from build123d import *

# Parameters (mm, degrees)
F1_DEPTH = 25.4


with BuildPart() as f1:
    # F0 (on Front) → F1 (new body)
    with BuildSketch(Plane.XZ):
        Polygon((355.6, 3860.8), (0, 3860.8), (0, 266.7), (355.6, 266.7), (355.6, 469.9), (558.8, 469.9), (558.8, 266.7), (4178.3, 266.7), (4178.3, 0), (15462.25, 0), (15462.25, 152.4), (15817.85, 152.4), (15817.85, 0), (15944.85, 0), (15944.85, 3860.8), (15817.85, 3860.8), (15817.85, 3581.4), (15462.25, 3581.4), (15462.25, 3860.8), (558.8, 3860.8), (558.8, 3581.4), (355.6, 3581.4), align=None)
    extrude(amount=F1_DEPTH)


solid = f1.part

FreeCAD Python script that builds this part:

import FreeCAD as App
import Part
import Sketcher
from FreeCAD import Vector
Q = App.Units.Quantity


def add_polygon(sketch, points):
    """Adds a closed chain of lines whose ends are joined by coincident constraints."""
    first, n = sketch.GeometryCount, len(points)
    for a, b in zip(points, points[1:] + points[:1]):
        sketch.addGeometry(Part.LineSegment(App.Vector(*a, 0), App.Vector(*b, 0)), False)
    for i in range(n):
        sketch.addConstraint(Sketcher.Constraint("Coincident", first + i, 2, first + (i + 1) % n, 1))

doc = App.newDocument("Part")
body = doc.addObject("PartDesign::Body", "Body")

sketch1 = body.newObject("Sketcher::SketchObject", "Sketch")
sketch1.AttachmentSupport = (doc.getObject("XZ_Plane"), [""])
sketch1.MapMode = "FlatFace"
add_polygon(sketch1, [(356, 3861), (0, 3861), (0, 267), (356, 267), (356, 470), (559, 470), (559, 267), (4178, 267), (4178, 0), (15462, 0), (15462, 152), (15818, 152), (15818, 0), (15945, 0), (15945, 3861), (15818, 3861), (15818, 3581), (15462, 3581), (15462, 3861), (559, 3861), (559, 3581), (356, 3581)])
sketch1.addConstraint([
    Sketcher.Constraint("Horizontal", 0),
    Sketcher.Constraint("Vertical", 1),
    Sketcher.Constraint("Horizontal", 2),
    Sketcher.Constraint("Vertical", 3),
    Sketcher.Constraint("Horizontal", 4),
    Sketcher.Constraint("Vertical", 5),
    Sketcher.Constraint("Horizontal", 6),
    Sketcher.Constraint("Vertical", 7),
    Sketcher.Constraint("Horizontal", 8),
    Sketcher.Constraint("Vertical", 9),
    Sketcher.Constraint("Horizontal", 10),
    Sketcher.Constraint("Vertical", 11),
    Sketcher.Constraint("Horizontal", 12),
    Sketcher.Constraint("Vertical", 13),
    Sketcher.Constraint("Horizontal", 14),
    Sketcher.Constraint("Vertical", 15),
    Sketcher.Constraint("Horizontal", 16),
    Sketcher.Constraint("Vertical", 17),
    Sketcher.Constraint("Horizontal", 18),
    Sketcher.Constraint("Vertical", 19),
    Sketcher.Constraint("Horizontal", 20),
    Sketcher.Constraint("Vertical", 21),
    Sketcher.Constraint("PointOnObject", 0, 2, -2),
    Sketcher.Constraint("PointOnObject", 7, 2, -1),
    Sketcher.Constraint("PointOnObject", 11, 2, -1),
    Sketcher.Constraint("Horizontal", 2, 2, 5, 2),
    Sketcher.Constraint("Horizontal", 0, 2, 13, 2),
    Sketcher.Constraint("Horizontal", 14, 2, 17, 2),
    Sketcher.Constraint("Horizontal", 16, 2, 19, 2),
    Sketcher.Constraint("Vertical", 11, 2, 14, 2),
    Sketcher.Constraint("Vertical", 9, 2, 16, 2),
    Sketcher.Constraint("Vertical", 5, 2, 18, 2),
    Sketcher.Constraint("Vertical", 3, 2, 20, 2),
    Sketcher.Constraint("Equal", 2, 10),
    Sketcher.Constraint("Equal", 20, 3),
    Sketcher.Constraint("DistanceX", 0, 2, 0, 1, Q("14 in")),
    Sketcher.Constraint("DistanceX", 4, 1, 4, 2, Q("8 in")),
    Sketcher.Constraint("DistanceX", 12, 1, 12, 2, Q("5 in")),
    Sketcher.Constraint("DistanceY", 9, 1, 9, 2, Q("6 in")),
    Sketcher.Constraint("DistanceY", 13, 1, 13, 2, Q("152 in")),
    Sketcher.Constraint("DistanceY", 15, 2, 15, 1, Q("11 in")),
    Sketcher.Constraint("DistanceX", 6, 1, 6, 2, Q("142.5 in")),
    Sketcher.Constraint("DistanceY", 1, 2, 1, 1, Q("141.5 in")),
    Sketcher.Constraint("DistanceX", 8, 1, 8, 2, Q("444.25 in")),
])
pad1 = body.newObject("PartDesign::Pad", "Pad")
pad1.Profile = sketch1
pad1.Length = Q("1 in")

doc.recompute()
